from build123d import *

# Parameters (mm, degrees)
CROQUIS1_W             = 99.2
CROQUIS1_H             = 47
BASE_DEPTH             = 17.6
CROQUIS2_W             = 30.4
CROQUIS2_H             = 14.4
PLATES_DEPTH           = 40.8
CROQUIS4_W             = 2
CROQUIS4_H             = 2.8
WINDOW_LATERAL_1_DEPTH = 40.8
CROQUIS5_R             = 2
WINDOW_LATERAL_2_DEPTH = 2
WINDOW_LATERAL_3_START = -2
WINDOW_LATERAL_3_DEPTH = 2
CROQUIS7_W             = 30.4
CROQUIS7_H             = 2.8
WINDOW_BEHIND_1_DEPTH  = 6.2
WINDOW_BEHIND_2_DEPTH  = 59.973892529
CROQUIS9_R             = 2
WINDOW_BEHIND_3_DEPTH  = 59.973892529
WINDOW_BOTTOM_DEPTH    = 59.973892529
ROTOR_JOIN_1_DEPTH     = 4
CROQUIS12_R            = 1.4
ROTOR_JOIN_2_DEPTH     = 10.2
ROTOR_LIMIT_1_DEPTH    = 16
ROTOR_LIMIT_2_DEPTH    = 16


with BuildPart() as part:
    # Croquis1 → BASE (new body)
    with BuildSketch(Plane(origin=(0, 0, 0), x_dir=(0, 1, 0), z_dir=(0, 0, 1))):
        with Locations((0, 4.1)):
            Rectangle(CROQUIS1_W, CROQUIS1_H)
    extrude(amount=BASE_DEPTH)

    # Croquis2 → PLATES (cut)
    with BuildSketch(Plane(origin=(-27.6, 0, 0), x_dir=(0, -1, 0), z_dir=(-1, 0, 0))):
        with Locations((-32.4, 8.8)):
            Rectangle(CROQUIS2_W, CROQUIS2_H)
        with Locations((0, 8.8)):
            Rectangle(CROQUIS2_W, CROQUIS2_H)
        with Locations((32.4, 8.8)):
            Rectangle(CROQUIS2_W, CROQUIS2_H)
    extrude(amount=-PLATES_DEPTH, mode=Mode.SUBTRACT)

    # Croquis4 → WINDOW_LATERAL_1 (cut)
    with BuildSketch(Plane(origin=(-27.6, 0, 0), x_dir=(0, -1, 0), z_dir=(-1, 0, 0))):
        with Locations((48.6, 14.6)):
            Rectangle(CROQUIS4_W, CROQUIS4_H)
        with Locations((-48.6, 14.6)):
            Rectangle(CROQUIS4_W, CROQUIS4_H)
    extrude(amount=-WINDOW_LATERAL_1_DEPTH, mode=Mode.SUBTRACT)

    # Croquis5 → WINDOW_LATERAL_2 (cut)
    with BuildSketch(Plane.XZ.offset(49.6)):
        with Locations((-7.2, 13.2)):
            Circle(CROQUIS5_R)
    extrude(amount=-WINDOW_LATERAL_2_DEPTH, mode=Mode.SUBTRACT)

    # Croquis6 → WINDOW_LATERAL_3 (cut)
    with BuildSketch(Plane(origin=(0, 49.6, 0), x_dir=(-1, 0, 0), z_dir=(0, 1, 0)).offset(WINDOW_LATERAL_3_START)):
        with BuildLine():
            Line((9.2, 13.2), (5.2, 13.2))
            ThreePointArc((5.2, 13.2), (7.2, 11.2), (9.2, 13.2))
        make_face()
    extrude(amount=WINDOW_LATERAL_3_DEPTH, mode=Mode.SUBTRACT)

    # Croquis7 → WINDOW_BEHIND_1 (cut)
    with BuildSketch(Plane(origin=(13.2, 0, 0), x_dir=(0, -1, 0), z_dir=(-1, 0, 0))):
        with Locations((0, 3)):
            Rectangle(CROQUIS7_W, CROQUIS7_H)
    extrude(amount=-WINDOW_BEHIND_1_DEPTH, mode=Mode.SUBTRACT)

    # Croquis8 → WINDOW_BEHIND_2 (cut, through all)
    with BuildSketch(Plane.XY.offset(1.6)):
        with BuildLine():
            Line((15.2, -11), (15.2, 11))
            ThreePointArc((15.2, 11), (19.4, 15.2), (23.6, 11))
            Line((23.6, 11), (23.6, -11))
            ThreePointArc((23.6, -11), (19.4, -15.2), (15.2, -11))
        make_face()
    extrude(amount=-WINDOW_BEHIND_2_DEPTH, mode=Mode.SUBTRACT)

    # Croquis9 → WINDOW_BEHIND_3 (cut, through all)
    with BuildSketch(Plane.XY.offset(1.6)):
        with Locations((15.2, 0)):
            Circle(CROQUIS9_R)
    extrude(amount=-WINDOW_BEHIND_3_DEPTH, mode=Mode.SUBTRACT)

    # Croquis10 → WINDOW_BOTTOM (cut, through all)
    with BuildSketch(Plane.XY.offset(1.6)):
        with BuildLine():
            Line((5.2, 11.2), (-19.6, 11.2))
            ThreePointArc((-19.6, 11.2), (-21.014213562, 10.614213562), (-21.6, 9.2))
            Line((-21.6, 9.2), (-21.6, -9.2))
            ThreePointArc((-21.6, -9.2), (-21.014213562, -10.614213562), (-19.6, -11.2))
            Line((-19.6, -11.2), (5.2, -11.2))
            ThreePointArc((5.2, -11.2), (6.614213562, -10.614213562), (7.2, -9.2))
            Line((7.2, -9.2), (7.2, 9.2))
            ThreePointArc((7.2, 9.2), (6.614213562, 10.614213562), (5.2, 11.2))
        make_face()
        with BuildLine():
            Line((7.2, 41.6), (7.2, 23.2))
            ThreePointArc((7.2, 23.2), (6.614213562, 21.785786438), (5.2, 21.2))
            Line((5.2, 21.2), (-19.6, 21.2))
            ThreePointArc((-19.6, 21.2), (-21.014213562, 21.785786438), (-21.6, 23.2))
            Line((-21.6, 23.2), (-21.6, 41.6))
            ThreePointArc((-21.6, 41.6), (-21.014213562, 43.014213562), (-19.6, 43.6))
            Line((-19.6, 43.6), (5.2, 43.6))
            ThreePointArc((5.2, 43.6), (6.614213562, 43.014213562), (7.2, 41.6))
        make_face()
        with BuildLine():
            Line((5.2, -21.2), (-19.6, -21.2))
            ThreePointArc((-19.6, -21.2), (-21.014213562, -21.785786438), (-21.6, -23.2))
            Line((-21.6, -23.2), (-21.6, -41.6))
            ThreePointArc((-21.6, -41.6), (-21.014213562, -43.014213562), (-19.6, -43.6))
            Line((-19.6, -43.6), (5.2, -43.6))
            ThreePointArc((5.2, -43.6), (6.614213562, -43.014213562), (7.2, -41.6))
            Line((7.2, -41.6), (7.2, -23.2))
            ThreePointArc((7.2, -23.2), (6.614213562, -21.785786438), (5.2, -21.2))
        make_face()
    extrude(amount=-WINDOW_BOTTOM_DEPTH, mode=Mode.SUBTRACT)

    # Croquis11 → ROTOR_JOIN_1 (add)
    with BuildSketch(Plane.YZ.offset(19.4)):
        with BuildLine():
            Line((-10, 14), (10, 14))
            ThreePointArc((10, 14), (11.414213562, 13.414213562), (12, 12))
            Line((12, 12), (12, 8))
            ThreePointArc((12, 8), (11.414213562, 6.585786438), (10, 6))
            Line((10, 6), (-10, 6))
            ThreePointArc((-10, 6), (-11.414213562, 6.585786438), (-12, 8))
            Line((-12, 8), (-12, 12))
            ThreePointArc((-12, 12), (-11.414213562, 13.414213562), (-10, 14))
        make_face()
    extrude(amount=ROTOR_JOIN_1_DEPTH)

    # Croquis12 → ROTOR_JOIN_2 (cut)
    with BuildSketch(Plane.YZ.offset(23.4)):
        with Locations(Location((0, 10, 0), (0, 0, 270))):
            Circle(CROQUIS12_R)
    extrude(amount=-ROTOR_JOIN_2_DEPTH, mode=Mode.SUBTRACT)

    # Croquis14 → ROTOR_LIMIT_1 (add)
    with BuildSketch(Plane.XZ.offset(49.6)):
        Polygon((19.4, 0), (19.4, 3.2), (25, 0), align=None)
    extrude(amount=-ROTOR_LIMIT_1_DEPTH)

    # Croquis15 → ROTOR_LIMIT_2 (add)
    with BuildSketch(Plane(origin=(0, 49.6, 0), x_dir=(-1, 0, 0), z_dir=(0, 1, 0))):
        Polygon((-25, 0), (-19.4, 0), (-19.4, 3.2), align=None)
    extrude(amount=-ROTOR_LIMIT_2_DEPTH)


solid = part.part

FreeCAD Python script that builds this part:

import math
import FreeCAD as App
import Part
import Sketcher
from FreeCAD import Vector
Q = App.Units.Quantity


def add_polygon(sketch, points):
    """Adds a closed chain of lines whose ends are joined by coincident constraints."""
    first, n = sketch.GeometryCount, len(points)
    for a, b in zip(points, points[1:] + points[:1]):
        sketch.addGeometry(Part.LineSegment(App.Vector(*a, 0), App.Vector(*b, 0)), False)
    for i in range(n):
        sketch.addConstraint(Sketcher.Constraint("Coincident", first + i, 2, first + (i + 1) % n, 1))

doc = App.newDocument("Part")
body = doc.addObject("PartDesign::Body", "Body")

sketch1 = body.newObject("Sketcher::SketchObject", "Sketch")
sketch1.AttachmentSupport = (doc.getObject("XY_Plane"), [""])
sketch1.MapMode = "FlatFace"
add_polygon(sketch1, [(-28, -50), (19, -50), (19, 50), (-28, 50)])
sketch1.addConstraint([
    Sketcher.Constraint("Horizontal", 0),
    Sketcher.Constraint("Vertical", 1),
    Sketcher.Constraint("Horizontal", 2),
    Sketcher.Constraint("Vertical", 3),
    Sketcher.Constraint("DistanceX", 0, 1, 0, 2, Q("47 mm")),
    Sketcher.Constraint("DistanceY", 1, 1, 1, 2, Q("99.2 mm")),
    Sketcher.Constraint("DistanceX", -1, 1, 0, 2, Q("19.4 mm")),
    Sketcher.Constraint("DistanceY", 0, 2, -1, 1, Q("49.6 mm")),
])
pad1 = body.newObject("PartDesign::Pad", "Pad")
pad1.Profile = sketch1
pad1.Length = 17.6

sketch2 = body.newObject("Sketcher::SketchObject", "Sketch001")
sketch2.AttachmentSupport = (doc.getObject("YZ_Plane"), [""])
sketch2.MapMode = "FlatFace"
sketch2.AttachmentOffset = App.Placement(Vector(0, 0, -27.6), App.Rotation())
add_polygon(sketch2, [(48, 16), (48, 2), (17, 2), (17, 16)])
add_polygon(sketch2, [(15, 16), (15, 2), (-15, 2), (-15, 16)])
add_polygon(sketch2, [(-17, 16), (-17, 2), (-48, 2), (-48, 16)])
sketch2.addConstraint([
    Sketcher.Constraint("Vertical", 0),
    Sketcher.Constraint("Horizontal", 1),
    Sketcher.Constraint("Vertical", 2),
    Sketcher.Constraint("Horizontal", 3),
    Sketcher.Constraint("Vertical", 4),
    Sketcher.Constraint("Horizontal", 5),
    Sketcher.Constraint("Vertical", 6),
    Sketcher.Constraint("Horizontal", 7),
    Sketcher.Constraint("Vertical", 8),
    Sketcher.Constraint("Horizontal", 9),
    Sketcher.Constraint("Vertical", 10),
    Sketcher.Constraint("Horizontal", 11),
    Sketcher.Constraint("Symmetric", 1, 2, 8, 2, -2),
    Sketcher.Constraint("Symmetric", 3, 2, 10, 2, -2),
    Sketcher.Constraint("Horizontal", 1, 2, 4, 2),
    Sketcher.Constraint("Horizontal", 3, 2, 6, 2),
    Sketcher.Constraint("Equal", 3, 5),
    Sketcher.Constraint("DistanceX", 1, 2, 1, 1, Q("30.4 mm")),
    Sketcher.Constraint("DistanceY", 0, 2, 0, 1, Q("14.4 mm")),
    Sketcher.Constraint("DistanceY", -1, 1, 2, 2, Q("16 mm")),
    Sketcher.Constraint("DistanceX", 4, 2, 1, 2, Q("2 mm")),
    Sketcher.Constraint("DistanceX", 8, 2, 5, 2, Q("2 mm")),
])
pocket1 = body.newObject("PartDesign::Pocket", "Pocket")
pocket1.Profile = sketch2
pocket1.Length = 40.8
pocket1.Reversed = True

sketch3 = body.newObject("Sketcher::SketchObject", "Sketch002")
sketch3.AttachmentSupport = (doc.getObject("YZ_Plane"), [""])
sketch3.MapMode = "FlatFace"
sketch3.AttachmentOffset = App.Placement(Vector(0, 0, -27.6), App.Rotation())
add_polygon(sketch3, [(-47.6, 16), (-47.6, 13.2), (-49.6, 13.2), (-49.6, 16)])
add_polygon(sketch3, [(49.6, 16), (49.6, 13.2), (47.6, 13.2), (47.6, 16)])
sketch3.addConstraint([
    Sketcher.Constraint("Vertical", 0),
    Sketcher.Constraint("Horizontal", 1),
    Sketcher.Constraint("Vertical", 2),
    Sketcher.Constraint("Horizontal", 3),
    Sketcher.Constraint("Vertical", 4),
    Sketcher.Constraint("Horizontal", 5),
    Sketcher.Constraint("Vertical", 6),
    Sketcher.Constraint("Horizontal", 7),
    Sketcher.Constraint("Symmetric", 1, 2, 4, 2, -2),
    Sketcher.Constraint("Symmetric", 3, 2, 6, 2, -2),
    Sketcher.Constraint("DistanceX", 1, 2, 1, 1, Q("2 mm")),
    Sketcher.Constraint("DistanceY", 0, 2, 0, 1, Q("2.8 mm")),
    Sketcher.Constraint("DistanceY", -1, 1, 2, 2, Q("16 mm")),
    Sketcher.Constraint("DistanceX", 0, 2, -1, 1, Q("47.6 mm")),
])
pocket2 = body.newObject("PartDesign::Pocket", "Pocket001")
pocket2.Profile = sketch3
pocket2.Length = 40.8
pocket2.Reversed = True

sketch4 = body.newObject("Sketcher::SketchObject", "Sketch003")
sketch4.AttachmentSupport = (doc.getObject("XZ_Plane"), [""])
sketch4.MapMode = "FlatFace"
sketch4.AttachmentOffset = App.Placement(Vector(0, 0, 49.6), App.Rotation())
sketch4.addGeometry(Part.Circle(Vector(-7.2, 13.2, 0), Vector(0, 0, 1), 2), False)
sketch4.addConstraint([
    Sketcher.Constraint("Diameter", 0, Q("4 mm")),
    Sketcher.Constraint("DistanceX", 0, 3, -1, 1, Q("7.2 mm")),
    Sketcher.Constraint("DistanceY", -1, 1, 0, 3, Q("13.2 mm")),
])
pocket3 = body.newObject("PartDesign::Pocket", "Pocket002")
pocket3.Profile = sketch4
pocket3.Length = 2

sketch5 = body.newObject("Sketcher::SketchObject", "Sketch004")
sketch5.AttachmentSupport = (doc.getObject("XZ_Plane"), [""])
sketch5.MapMode = "FlatFace"
sketch5.AttachmentOffset = App.Placement(Vector(0, 0, -47.6), App.Rotation())
sketch5.addGeometry([
    Part.LineSegment(Vector(-9.2, 13.2, 0), Vector(-5.2, 13.2, 0)),
    Part.ArcOfCircle(Part.Circle(Vector(-7.2, 13.2, 0), Vector(0, 0, 1), 2), math.radians(180), math.radians(360)),
], False)
sketch5.addConstraint([
    Sketcher.Constraint("Coincident", 0, 1, 1, 1),
    Sketcher.Constraint("Coincident", 1, 2, 0, 2),
    Sketcher.Constraint("Horizontal", 0),
    Sketcher.Constraint("Horizontal", 1, 3, 0, 1),
    Sketcher.Constraint("Radius", 1, Q("2 mm")),
    Sketcher.Constraint("DistanceX", 1, 3, -1, 1, Q("7.2 mm")),
    Sketcher.Constraint("DistanceY", -1, 1, 1, 3, Q("13.2 mm")),
])
pocket4 = body.newObject("PartDesign::Pocket", "Pocket003")
pocket4.Profile = sketch5
pocket4.Length = 2

sketch6 = body.newObject("Sketcher::SketchObject", "Sketch005")
sketch6.AttachmentSupport = (doc.getObject("YZ_Plane"), [""])
sketch6.MapMode = "FlatFace"
sketch6.AttachmentOffset = App.Placement(Vector(0, 0, 13.2), App.Rotation())
add_polygon(sketch6, [(15.2, 4.4), (15.2, 1.6), (-15.2, 1.6), (-15.2, 4.4)])
sketch6.addConstraint([
    Sketcher.Constraint("Vertical", 0),
    Sketcher.Constraint("Horizontal", 1),
    Sketcher.Constraint("Vertical", 2),
    Sketcher.Constraint("Horizontal", 3),
    Sketcher.Constraint("DistanceX", 1, 2, 1, 1, Q("30.4 mm")),
    Sketcher.Constraint("DistanceY", 0, 2, 0, 1, Q("2.8 mm")),
    Sketcher.Constraint("DistanceX", -1, 1, 0, 2, Q("15.2 mm")),
    Sketcher.Constraint("DistanceY", -1, 1, 0, 2, Q("1.6 mm")),
])
pocket5 = body.newObject("PartDesign::Pocket", "Pocket004")
pocket5.Profile = sketch6
pocket5.Length = 6.2
pocket5.Reversed = True

sketch7 = body.newObject("Sketcher::SketchObject", "Sketch006")
sketch7.AttachmentSupport = (doc.getObject("XY_Plane"), [""])
sketch7.MapMode = "FlatFace"
sketch7.AttachmentOffset = App.Placement(Vector(0, 0, 1.6), App.Rotation())
sketch7.addGeometry([
    Part.LineSegment(Vector(15.2, 11, 0), Vector(15.2, -11, 0)),
    Part.ArcOfCircle(Part.Circle(Vector(19.4, -11, 0), Vector(0, 0, 1), 4.2), math.radians(180), math.radians(360)),
    Part.LineSegment(Vector(23.6, -11, 0), Vector(23.6, 11, 0)),
    Part.ArcOfCircle(Part.Circle(Vector(19.4, 11, 0), Vector(0, 0, 1), 4.2), math.radians(0), math.radians(180)),
], False)
sketch7.addConstraint([
    Sketcher.Constraint("Tangent", 0, 2, 1, 1),
    Sketcher.Constraint("Tangent", 1, 2, 2, 1),
    Sketcher.Constraint("Tangent", 2, 2, 3, 1),
    Sketcher.Constraint("Tangent", 3, 2, 0, 1),
    Sketcher.Constraint("Vertical", 0),
    Sketcher.Constraint("Vertical", 2),
    Sketcher.Constraint("Radius", 1, Q("4.2 mm")),
    Sketcher.Constraint("DistanceY", 0, 2, 0, 1, Q("22 mm")),
    Sketcher.Constraint("DistanceY", 1, 3, -1, 1, Q("11 mm")),
    Sketcher.Constraint("DistanceX", -1, 1, 1, 3, Q("19.4 mm")),
])
pocket6 = body.newObject("PartDesign::Pocket", "Pocket005")
pocket6.Profile = sketch7
pocket6.Type = "ThroughAll"

sketch8 = body.newObject("Sketcher::SketchObject", "Sketch007")
sketch8.AttachmentSupport = (doc.getObject("XY_Plane"), [""])
sketch8.MapMode = "FlatFace"
sketch8.AttachmentOffset = App.Placement(Vector(0, 0, 1.6), App.Rotation())
sketch8.addGeometry(Part.Circle(Vector(15.2, 0, 0), Vector(0, 0, 1), 2), False)
sketch8.addConstraint([
    Sketcher.Constraint("PointOnObject", 0, 3, -1),
    Sketcher.Constraint("Diameter", 0, Q("4 mm")),
    Sketcher.Constraint("DistanceX", -1, 1, 0, 3, Q("15.2 mm")),
])
pocket7 = body.newObject("PartDesign::Pocket", "Pocket006")
pocket7.Profile = sketch8
pocket7.Type = "ThroughAll"

sketch9 = body.newObject("Sketcher::SketchObject", "Sketch008")
sketch9.AttachmentSupport = (doc.getObject("XY_Plane"), [""])
sketch9.MapMode = "FlatFace"
sketch9.AttachmentOffset = App.Placement(Vector(0, 0, 1.6), App.Rotation())
sketch9.addGeometry([
    Part.LineSegment(Vector(5.2, 11.2, 0), Vector(-19.6, 11.2, 0)),
    Part.ArcOfCircle(Part.Circle(Vector(-19.6, 9.2, 0), Vector(0, 0, 1), 2), math.radians(90), math.radians(180)),
    Part.LineSegment(Vector(-21.6, 9.2, 0), Vector(-21.6, -9.2, 0)),
    Part.ArcOfCircle(Part.Circle(Vector(-19.6, -9.2, 0), Vector(0, 0, 1), 2), math.radians(-180), math.radians(-90)),
    Part.LineSegment(Vector(-19.6, -11.2, 0), Vector(5.2, -11.2, 0)),
    Part.ArcOfCircle(Part.Circle(Vector(5.2, -9.2, 0), Vector(0, 0, 1), 2), math.radians(-90), math.radians(0)),
    Part.LineSegment(Vector(7.2, -9.2, 0), Vector(7.2, 9.2, 0)),
    Part.ArcOfCircle(Part.Circle(Vector(5.2, 9.2, 0), Vector(0, 0, 1), 2), math.radians(0), math.radians(90)),
    Part.LineSegment(Vector(7.2, 23.2, 0), Vector(7.2, 41.6, 0)),
    Part.ArcOfCircle(Part.Circle(Vector(5.2, 41.6, 0), Vector(0, 0, 1), 2), math.radians(0), math.radians(90)),
    Part.LineSegment(Vector(5.2, 43.6, 0), Vector(-19.6, 43.6, 0)),
    Part.ArcOfCircle(Part.Circle(Vector(-19.6, 41.6, 0), Vector(0, 0, 1), 2), math.radians(90), math.radians(180)),
    Part.LineSegment(Vector(-21.6, 41.6, 0), Vector(-21.6, 23.2, 0)),
    Part.ArcOfCircle(Part.Circle(Vector(-19.6, 23.2, 0), Vector(0, 0, 1), 2), math.radians(-180), math.radians(-90)),
    Part.LineSegment(Vector(-19.6, 21.2, 0), Vector(5.2, 21.2, 0)),
    Part.ArcOfCircle(Part.Circle(Vector(5.2, 23.2, 0), Vector(0, 0, 1), 2), math.radians(-90), math.radians(0)),
    Part.LineSegment(Vector(5.2, -21.2, 0), Vector(-19.6, -21.2, 0)),
    Part.ArcOfCircle(Part.Circle(Vector(-19.6, -23.2, 0), Vector(0, 0, 1), 2), math.radians(90), math.radians(180)),
    Part.LineSegment(Vector(-21.6, -23.2, 0), Vector(-21.6, -41.6, 0)),
    Part.ArcOfCircle(Part.Circle(Vector(-19.6, -41.6, 0), Vector(0, 0, 1), 2), math.radians(-180), math.radians(-90)),
    Part.LineSegment(Vector(-19.6, -43.6, 0), Vector(5.2, -43.6, 0)),
    Part.ArcOfCircle(Part.Circle(Vector(5.2, -41.6, 0), Vector(0, 0, 1), 2), math.radians(-90), math.radians(0)),
    Part.LineSegment(Vector(7.2, -41.6, 0), Vector(7.2, -23.2, 0)),
    Part.ArcOfCircle(Part.Circle(Vector(5.2, -23.2, 0), Vector(0, 0, 1), 2), math.radians(0), math.radians(90)),
], False)
sketch9.addConstraint([
    Sketcher.Constraint("Tangent", 0, 2, 1, 1),
    Sketcher.Constraint("Tangent", 1, 2, 2, 1),
    Sketcher.Constraint("Tangent", 2, 2, 3, 1),
    Sketcher.Constraint("Tangent", 3, 2, 4, 1),
    Sketcher.Constraint("Tangent", 4, 2, 5, 1),
    Sketcher.Constraint("Tangent", 5, 2, 6, 1),
    Sketcher.Constraint("Tangent", 6, 2, 7, 1),
    Sketcher.Constraint("Tangent", 7, 2, 0, 1),
    Sketcher.Constraint("Tangent", 8, 2, 9, 1),
    Sketcher.Constraint("Tangent", 9, 2, 10, 1),
    Sketcher.Constraint("Tangent", 10, 2, 11, 1),
    Sketcher.Constraint("Tangent", 11, 2, 12, 1),
    Sketcher.Constraint("Tangent", 12, 2, 13, 1),
    Sketcher.Constraint("Tangent", 13, 2, 14, 1),
    Sketcher.Constraint("Tangent", 14, 2, 15, 1),
    Sketcher.Constraint("Tangent", 15, 2, 8, 1),
    Sketcher.Constraint("Tangent", 16, 2, 17, 1),
    Sketcher.Constraint("Tangent", 17, 2, 18, 1),
    Sketcher.Constraint("Tangent", 18, 2, 19, 1),
    Sketcher.Constraint("Tangent", 19, 2, 20, 1),
    Sketcher.Constraint("Tangent", 20, 2, 21, 1),
    Sketcher.Constraint("Tangent", 21, 2, 22, 1),
    Sketcher.Constraint("Tangent", 22, 2, 23, 1),
    Sketcher.Constraint("Tangent", 23, 2, 16, 1),
    Sketcher.Constraint("Horizontal", 0),
    Sketcher.Constraint("Vertical", 2),
    Sketcher.Constraint("Horizontal", 4),
    Sketcher.Constraint("Vertical", 6),
    Sketcher.Constraint("Vertical", 8),
    Sketcher.Constraint("Horizontal", 10),
    Sketcher.Constraint("Vertical", 12),
    Sketcher.Constraint("Horizontal", 14),
    Sketcher.Constraint("Horizontal", 16),
    Sketcher.Constraint("Vertical", 18),
    Sketcher.Constraint("Horizontal", 20),
    Sketcher.Constraint("Vertical", 22),
    Sketcher.Constraint("Equal", 1, 3),
    Sketcher.Constraint("Equal", 3, 5),
    Sketcher.Constraint("Equal", 5, 7),
    Sketcher.Constraint("Equal", 7, 9),
    Sketcher.Constraint("Equal", 9, 11),
    Sketcher.Constraint("Equal", 11, 13),
    Sketcher.Constraint("Equal", 13, 15),
    Sketcher.Constraint("Equal", 15, 17),
    Sketcher.Constraint("Equal", 17, 19),
    Sketcher.Constraint("Equal", 19, 21),
    Sketcher.Constraint("Equal", 21, 23),
    Sketcher.Constraint("Symmetric", 13, 3, 17, 3, -1),
    Sketcher.Constraint("Symmetric", 9, 3, 21, 3, -1),
    Sketcher.Constraint("Vertical", 7, 3, 9, 3),
    Sketcher.Constraint("Vertical", 3, 3, 11, 3),
    Sketcher.Constraint("Equal", 6, 8),
    Sketcher.Constraint("Radius", 1, Q("2 mm")),
    Sketcher.Constraint("DistanceX", 0, 2, 0, 1, Q("24.8 mm")),
    Sketcher.Constraint("DistanceY", 2, 2, 2, 1, Q("18.4 mm")),
    Sketcher.Constraint("DistanceY", 1, 3, 13, 3, Q("14 mm")),
    Sketcher.Constraint("DistanceY", 17, 3, 3, 3, Q("14 mm")),
    Sketcher.Constraint("DistanceX", 1, 3, -1, 1, Q("19.6 mm")),
])
pocket8 = body.newObject("PartDesign::Pocket", "Pocket007")
pocket8.Profile = sketch9
pocket8.Type = "ThroughAll"

sketch10 = body.newObject("Sketcher::SketchObject", "Sketch009")
sketch10.AttachmentSupport = (doc.getObject("YZ_Plane"), [""])
sketch10.MapMode = "FlatFace"
sketch10.AttachmentOffset = App.Placement(Vector(0, 0, 19.4), App.Rotation())
sketch10.addGeometry([
    Part.LineSegment(Vector(10, 14, 0), Vector(-10, 14, 0)),
    Part.ArcOfCircle(Part.Circle(Vector(-10, 12, 0), Vector(0, 0, 1), 2), math.radians(90), math.radians(180)),
    Part.LineSegment(Vector(-12, 12, 0), Vector(-12, 8, 0)),
    Part.ArcOfCircle(Part.Circle(Vector(-10, 8, 0), Vector(0, 0, 1), 2), math.radians(-180), math.radians(-90)),
    Part.LineSegment(Vector(-10, 6, 0), Vector(10, 6, 0)),
    Part.ArcOfCircle(Part.Circle(Vector(10, 8, 0), Vector(0, 0, 1), 2), math.radians(-90), math.radians(0)),
    Part.LineSegment(Vector(12, 8, 0), Vector(12, 12, 0)),
    Part.ArcOfCircle(Part.Circle(Vector(10, 12, 0), Vector(0, 0, 1), 2), math.radians(0), math.radians(90)),
], False)
sketch10.addConstraint([
    Sketcher.Constraint("Tangent", 0, 2, 1, 1),
    Sketcher.Constraint("Tangent", 1, 2, 2, 1),
    Sketcher.Constraint("Tangent", 2, 2, 3, 1),
    Sketcher.Constraint("Tangent", 3, 2, 4, 1),
    Sketcher.Constraint("Tangent", 4, 2, 5, 1),
    Sketcher.Constraint("Tangent", 5, 2, 6, 1),
    Sketcher.Constraint("Tangent", 6, 2, 7, 1),
    Sketcher.Constraint("Tangent", 7, 2, 0, 1),
    Sketcher.Constraint("Horizontal", 0),
    Sketcher.Constraint("Vertical", 2),
    Sketcher.Constraint("Horizontal", 4),
    Sketcher.Constraint("Vertical", 6),
    Sketcher.Constraint("Equal", 1, 3),
    Sketcher.Constraint("Equal", 3, 5),
    Sketcher.Constraint("Equal", 5, 7),
    Sketcher.Constraint("Radius", 1, Q("2 mm")),
    Sketcher.Constraint("DistanceX", 0, 2, 0, 1, Q("20 mm")),
    Sketcher.Constraint("DistanceY", 2, 2, 2, 1, Q("4 mm")),
    Sketcher.Constraint("DistanceX", 1, 3, -1, 1, Q("10 mm")),
    Sketcher.Constraint("DistanceY", -1, 1, 1, 3, Q("12 mm")),
])
pad2 = body.newObject("PartDesign::Pad", "Pad001")
pad2.Profile = sketch10
pad2.Length = 4

sketch11 = body.newObject("Sketcher::SketchObject", "Sketch010")
sketch11.AttachmentSupport = (doc.getObject("YZ_Plane"), [""])
sketch11.MapMode = "FlatFace"
sketch11.AttachmentOffset = App.Placement(Vector(0, 0, 23.4), App.Rotation())
sketch11.addGeometry(Part.Circle(Vector(0, 10, 0), Vector(0, 0, 1), 1.4), False)
sketch11.addConstraint([
    Sketcher.Constraint("PointOnObject", 0, 3, -2),
    Sketcher.Constraint("Diameter", 0, Q("2.8 mm")),
    Sketcher.Constraint("DistanceY", -1, 1, 0, 3, Q("10 mm")),
])
pocket9 = body.newObject("PartDesign::Pocket", "Pocket008")
pocket9.Profile = sketch11
pocket9.Length = 10.2

sketch12 = body.newObject("Sketcher::SketchObject", "Sketch011")
sketch12.AttachmentSupport = (doc.getObject("XZ_Plane"), [""])
sketch12.MapMode = "FlatFace"
sketch12.AttachmentOffset = App.Placement(Vector(0, 0, 49.6), App.Rotation())
add_polygon(sketch12, [(19.4, 3.2), (19.4, 0), (25, 0)])
sketch12.addConstraint([
    Sketcher.Constraint("Vertical", 0),
    Sketcher.Constraint("Horizontal", 1),
    Sketcher.Constraint("PointOnObject", 0, 2, -1),
    Sketcher.Constraint("DistanceX", 1, 1, 1, 2, Q("5.6 mm")),
    Sketcher.Constraint("DistanceY", 0, 2, 0, 1, Q("3.2 mm")),
    Sketcher.Constraint("DistanceX", -1, 1, 1, 2, Q("25 mm")),
])
pad3 = body.newObject("PartDesign::Pad", "Pad002")
pad3.Profile = sketch12
pad3.Length = 16
pad3.Reversed = True

sketch13 = body.newObject("Sketcher::SketchObject", "Sketch012")
sketch13.AttachmentSupport = (doc.getObject("XZ_Plane"), [""])
sketch13.MapMode = "FlatFace"
sketch13.AttachmentOffset = App.Placement(Vector(0, 0, -49.6), App.Rotation())
add_polygon(sketch13, [(25, 0), (19.4, 0), (19.4, 3.2)])
sketch13.addConstraint([
    Sketcher.Constraint("Horizontal", 0),
    Sketcher.Constraint("Vertical", 1),
    Sketcher.Constraint("PointOnObject", 0, 2, -1),
    Sketcher.Constraint("DistanceX", 0, 2, 0, 1, Q("5.6 mm")),
    Sketcher.Constraint("DistanceY", 1, 1, 1, 2, Q("3.2 mm")),
    Sketcher.Constraint("DistanceX", -1, 1, 2, 2, Q("25 mm")),
])
pad4 = body.newObject("PartDesign::Pad", "Pad003")
pad4.Profile = sketch13
pad4.Length = 16

doc.recompute()
